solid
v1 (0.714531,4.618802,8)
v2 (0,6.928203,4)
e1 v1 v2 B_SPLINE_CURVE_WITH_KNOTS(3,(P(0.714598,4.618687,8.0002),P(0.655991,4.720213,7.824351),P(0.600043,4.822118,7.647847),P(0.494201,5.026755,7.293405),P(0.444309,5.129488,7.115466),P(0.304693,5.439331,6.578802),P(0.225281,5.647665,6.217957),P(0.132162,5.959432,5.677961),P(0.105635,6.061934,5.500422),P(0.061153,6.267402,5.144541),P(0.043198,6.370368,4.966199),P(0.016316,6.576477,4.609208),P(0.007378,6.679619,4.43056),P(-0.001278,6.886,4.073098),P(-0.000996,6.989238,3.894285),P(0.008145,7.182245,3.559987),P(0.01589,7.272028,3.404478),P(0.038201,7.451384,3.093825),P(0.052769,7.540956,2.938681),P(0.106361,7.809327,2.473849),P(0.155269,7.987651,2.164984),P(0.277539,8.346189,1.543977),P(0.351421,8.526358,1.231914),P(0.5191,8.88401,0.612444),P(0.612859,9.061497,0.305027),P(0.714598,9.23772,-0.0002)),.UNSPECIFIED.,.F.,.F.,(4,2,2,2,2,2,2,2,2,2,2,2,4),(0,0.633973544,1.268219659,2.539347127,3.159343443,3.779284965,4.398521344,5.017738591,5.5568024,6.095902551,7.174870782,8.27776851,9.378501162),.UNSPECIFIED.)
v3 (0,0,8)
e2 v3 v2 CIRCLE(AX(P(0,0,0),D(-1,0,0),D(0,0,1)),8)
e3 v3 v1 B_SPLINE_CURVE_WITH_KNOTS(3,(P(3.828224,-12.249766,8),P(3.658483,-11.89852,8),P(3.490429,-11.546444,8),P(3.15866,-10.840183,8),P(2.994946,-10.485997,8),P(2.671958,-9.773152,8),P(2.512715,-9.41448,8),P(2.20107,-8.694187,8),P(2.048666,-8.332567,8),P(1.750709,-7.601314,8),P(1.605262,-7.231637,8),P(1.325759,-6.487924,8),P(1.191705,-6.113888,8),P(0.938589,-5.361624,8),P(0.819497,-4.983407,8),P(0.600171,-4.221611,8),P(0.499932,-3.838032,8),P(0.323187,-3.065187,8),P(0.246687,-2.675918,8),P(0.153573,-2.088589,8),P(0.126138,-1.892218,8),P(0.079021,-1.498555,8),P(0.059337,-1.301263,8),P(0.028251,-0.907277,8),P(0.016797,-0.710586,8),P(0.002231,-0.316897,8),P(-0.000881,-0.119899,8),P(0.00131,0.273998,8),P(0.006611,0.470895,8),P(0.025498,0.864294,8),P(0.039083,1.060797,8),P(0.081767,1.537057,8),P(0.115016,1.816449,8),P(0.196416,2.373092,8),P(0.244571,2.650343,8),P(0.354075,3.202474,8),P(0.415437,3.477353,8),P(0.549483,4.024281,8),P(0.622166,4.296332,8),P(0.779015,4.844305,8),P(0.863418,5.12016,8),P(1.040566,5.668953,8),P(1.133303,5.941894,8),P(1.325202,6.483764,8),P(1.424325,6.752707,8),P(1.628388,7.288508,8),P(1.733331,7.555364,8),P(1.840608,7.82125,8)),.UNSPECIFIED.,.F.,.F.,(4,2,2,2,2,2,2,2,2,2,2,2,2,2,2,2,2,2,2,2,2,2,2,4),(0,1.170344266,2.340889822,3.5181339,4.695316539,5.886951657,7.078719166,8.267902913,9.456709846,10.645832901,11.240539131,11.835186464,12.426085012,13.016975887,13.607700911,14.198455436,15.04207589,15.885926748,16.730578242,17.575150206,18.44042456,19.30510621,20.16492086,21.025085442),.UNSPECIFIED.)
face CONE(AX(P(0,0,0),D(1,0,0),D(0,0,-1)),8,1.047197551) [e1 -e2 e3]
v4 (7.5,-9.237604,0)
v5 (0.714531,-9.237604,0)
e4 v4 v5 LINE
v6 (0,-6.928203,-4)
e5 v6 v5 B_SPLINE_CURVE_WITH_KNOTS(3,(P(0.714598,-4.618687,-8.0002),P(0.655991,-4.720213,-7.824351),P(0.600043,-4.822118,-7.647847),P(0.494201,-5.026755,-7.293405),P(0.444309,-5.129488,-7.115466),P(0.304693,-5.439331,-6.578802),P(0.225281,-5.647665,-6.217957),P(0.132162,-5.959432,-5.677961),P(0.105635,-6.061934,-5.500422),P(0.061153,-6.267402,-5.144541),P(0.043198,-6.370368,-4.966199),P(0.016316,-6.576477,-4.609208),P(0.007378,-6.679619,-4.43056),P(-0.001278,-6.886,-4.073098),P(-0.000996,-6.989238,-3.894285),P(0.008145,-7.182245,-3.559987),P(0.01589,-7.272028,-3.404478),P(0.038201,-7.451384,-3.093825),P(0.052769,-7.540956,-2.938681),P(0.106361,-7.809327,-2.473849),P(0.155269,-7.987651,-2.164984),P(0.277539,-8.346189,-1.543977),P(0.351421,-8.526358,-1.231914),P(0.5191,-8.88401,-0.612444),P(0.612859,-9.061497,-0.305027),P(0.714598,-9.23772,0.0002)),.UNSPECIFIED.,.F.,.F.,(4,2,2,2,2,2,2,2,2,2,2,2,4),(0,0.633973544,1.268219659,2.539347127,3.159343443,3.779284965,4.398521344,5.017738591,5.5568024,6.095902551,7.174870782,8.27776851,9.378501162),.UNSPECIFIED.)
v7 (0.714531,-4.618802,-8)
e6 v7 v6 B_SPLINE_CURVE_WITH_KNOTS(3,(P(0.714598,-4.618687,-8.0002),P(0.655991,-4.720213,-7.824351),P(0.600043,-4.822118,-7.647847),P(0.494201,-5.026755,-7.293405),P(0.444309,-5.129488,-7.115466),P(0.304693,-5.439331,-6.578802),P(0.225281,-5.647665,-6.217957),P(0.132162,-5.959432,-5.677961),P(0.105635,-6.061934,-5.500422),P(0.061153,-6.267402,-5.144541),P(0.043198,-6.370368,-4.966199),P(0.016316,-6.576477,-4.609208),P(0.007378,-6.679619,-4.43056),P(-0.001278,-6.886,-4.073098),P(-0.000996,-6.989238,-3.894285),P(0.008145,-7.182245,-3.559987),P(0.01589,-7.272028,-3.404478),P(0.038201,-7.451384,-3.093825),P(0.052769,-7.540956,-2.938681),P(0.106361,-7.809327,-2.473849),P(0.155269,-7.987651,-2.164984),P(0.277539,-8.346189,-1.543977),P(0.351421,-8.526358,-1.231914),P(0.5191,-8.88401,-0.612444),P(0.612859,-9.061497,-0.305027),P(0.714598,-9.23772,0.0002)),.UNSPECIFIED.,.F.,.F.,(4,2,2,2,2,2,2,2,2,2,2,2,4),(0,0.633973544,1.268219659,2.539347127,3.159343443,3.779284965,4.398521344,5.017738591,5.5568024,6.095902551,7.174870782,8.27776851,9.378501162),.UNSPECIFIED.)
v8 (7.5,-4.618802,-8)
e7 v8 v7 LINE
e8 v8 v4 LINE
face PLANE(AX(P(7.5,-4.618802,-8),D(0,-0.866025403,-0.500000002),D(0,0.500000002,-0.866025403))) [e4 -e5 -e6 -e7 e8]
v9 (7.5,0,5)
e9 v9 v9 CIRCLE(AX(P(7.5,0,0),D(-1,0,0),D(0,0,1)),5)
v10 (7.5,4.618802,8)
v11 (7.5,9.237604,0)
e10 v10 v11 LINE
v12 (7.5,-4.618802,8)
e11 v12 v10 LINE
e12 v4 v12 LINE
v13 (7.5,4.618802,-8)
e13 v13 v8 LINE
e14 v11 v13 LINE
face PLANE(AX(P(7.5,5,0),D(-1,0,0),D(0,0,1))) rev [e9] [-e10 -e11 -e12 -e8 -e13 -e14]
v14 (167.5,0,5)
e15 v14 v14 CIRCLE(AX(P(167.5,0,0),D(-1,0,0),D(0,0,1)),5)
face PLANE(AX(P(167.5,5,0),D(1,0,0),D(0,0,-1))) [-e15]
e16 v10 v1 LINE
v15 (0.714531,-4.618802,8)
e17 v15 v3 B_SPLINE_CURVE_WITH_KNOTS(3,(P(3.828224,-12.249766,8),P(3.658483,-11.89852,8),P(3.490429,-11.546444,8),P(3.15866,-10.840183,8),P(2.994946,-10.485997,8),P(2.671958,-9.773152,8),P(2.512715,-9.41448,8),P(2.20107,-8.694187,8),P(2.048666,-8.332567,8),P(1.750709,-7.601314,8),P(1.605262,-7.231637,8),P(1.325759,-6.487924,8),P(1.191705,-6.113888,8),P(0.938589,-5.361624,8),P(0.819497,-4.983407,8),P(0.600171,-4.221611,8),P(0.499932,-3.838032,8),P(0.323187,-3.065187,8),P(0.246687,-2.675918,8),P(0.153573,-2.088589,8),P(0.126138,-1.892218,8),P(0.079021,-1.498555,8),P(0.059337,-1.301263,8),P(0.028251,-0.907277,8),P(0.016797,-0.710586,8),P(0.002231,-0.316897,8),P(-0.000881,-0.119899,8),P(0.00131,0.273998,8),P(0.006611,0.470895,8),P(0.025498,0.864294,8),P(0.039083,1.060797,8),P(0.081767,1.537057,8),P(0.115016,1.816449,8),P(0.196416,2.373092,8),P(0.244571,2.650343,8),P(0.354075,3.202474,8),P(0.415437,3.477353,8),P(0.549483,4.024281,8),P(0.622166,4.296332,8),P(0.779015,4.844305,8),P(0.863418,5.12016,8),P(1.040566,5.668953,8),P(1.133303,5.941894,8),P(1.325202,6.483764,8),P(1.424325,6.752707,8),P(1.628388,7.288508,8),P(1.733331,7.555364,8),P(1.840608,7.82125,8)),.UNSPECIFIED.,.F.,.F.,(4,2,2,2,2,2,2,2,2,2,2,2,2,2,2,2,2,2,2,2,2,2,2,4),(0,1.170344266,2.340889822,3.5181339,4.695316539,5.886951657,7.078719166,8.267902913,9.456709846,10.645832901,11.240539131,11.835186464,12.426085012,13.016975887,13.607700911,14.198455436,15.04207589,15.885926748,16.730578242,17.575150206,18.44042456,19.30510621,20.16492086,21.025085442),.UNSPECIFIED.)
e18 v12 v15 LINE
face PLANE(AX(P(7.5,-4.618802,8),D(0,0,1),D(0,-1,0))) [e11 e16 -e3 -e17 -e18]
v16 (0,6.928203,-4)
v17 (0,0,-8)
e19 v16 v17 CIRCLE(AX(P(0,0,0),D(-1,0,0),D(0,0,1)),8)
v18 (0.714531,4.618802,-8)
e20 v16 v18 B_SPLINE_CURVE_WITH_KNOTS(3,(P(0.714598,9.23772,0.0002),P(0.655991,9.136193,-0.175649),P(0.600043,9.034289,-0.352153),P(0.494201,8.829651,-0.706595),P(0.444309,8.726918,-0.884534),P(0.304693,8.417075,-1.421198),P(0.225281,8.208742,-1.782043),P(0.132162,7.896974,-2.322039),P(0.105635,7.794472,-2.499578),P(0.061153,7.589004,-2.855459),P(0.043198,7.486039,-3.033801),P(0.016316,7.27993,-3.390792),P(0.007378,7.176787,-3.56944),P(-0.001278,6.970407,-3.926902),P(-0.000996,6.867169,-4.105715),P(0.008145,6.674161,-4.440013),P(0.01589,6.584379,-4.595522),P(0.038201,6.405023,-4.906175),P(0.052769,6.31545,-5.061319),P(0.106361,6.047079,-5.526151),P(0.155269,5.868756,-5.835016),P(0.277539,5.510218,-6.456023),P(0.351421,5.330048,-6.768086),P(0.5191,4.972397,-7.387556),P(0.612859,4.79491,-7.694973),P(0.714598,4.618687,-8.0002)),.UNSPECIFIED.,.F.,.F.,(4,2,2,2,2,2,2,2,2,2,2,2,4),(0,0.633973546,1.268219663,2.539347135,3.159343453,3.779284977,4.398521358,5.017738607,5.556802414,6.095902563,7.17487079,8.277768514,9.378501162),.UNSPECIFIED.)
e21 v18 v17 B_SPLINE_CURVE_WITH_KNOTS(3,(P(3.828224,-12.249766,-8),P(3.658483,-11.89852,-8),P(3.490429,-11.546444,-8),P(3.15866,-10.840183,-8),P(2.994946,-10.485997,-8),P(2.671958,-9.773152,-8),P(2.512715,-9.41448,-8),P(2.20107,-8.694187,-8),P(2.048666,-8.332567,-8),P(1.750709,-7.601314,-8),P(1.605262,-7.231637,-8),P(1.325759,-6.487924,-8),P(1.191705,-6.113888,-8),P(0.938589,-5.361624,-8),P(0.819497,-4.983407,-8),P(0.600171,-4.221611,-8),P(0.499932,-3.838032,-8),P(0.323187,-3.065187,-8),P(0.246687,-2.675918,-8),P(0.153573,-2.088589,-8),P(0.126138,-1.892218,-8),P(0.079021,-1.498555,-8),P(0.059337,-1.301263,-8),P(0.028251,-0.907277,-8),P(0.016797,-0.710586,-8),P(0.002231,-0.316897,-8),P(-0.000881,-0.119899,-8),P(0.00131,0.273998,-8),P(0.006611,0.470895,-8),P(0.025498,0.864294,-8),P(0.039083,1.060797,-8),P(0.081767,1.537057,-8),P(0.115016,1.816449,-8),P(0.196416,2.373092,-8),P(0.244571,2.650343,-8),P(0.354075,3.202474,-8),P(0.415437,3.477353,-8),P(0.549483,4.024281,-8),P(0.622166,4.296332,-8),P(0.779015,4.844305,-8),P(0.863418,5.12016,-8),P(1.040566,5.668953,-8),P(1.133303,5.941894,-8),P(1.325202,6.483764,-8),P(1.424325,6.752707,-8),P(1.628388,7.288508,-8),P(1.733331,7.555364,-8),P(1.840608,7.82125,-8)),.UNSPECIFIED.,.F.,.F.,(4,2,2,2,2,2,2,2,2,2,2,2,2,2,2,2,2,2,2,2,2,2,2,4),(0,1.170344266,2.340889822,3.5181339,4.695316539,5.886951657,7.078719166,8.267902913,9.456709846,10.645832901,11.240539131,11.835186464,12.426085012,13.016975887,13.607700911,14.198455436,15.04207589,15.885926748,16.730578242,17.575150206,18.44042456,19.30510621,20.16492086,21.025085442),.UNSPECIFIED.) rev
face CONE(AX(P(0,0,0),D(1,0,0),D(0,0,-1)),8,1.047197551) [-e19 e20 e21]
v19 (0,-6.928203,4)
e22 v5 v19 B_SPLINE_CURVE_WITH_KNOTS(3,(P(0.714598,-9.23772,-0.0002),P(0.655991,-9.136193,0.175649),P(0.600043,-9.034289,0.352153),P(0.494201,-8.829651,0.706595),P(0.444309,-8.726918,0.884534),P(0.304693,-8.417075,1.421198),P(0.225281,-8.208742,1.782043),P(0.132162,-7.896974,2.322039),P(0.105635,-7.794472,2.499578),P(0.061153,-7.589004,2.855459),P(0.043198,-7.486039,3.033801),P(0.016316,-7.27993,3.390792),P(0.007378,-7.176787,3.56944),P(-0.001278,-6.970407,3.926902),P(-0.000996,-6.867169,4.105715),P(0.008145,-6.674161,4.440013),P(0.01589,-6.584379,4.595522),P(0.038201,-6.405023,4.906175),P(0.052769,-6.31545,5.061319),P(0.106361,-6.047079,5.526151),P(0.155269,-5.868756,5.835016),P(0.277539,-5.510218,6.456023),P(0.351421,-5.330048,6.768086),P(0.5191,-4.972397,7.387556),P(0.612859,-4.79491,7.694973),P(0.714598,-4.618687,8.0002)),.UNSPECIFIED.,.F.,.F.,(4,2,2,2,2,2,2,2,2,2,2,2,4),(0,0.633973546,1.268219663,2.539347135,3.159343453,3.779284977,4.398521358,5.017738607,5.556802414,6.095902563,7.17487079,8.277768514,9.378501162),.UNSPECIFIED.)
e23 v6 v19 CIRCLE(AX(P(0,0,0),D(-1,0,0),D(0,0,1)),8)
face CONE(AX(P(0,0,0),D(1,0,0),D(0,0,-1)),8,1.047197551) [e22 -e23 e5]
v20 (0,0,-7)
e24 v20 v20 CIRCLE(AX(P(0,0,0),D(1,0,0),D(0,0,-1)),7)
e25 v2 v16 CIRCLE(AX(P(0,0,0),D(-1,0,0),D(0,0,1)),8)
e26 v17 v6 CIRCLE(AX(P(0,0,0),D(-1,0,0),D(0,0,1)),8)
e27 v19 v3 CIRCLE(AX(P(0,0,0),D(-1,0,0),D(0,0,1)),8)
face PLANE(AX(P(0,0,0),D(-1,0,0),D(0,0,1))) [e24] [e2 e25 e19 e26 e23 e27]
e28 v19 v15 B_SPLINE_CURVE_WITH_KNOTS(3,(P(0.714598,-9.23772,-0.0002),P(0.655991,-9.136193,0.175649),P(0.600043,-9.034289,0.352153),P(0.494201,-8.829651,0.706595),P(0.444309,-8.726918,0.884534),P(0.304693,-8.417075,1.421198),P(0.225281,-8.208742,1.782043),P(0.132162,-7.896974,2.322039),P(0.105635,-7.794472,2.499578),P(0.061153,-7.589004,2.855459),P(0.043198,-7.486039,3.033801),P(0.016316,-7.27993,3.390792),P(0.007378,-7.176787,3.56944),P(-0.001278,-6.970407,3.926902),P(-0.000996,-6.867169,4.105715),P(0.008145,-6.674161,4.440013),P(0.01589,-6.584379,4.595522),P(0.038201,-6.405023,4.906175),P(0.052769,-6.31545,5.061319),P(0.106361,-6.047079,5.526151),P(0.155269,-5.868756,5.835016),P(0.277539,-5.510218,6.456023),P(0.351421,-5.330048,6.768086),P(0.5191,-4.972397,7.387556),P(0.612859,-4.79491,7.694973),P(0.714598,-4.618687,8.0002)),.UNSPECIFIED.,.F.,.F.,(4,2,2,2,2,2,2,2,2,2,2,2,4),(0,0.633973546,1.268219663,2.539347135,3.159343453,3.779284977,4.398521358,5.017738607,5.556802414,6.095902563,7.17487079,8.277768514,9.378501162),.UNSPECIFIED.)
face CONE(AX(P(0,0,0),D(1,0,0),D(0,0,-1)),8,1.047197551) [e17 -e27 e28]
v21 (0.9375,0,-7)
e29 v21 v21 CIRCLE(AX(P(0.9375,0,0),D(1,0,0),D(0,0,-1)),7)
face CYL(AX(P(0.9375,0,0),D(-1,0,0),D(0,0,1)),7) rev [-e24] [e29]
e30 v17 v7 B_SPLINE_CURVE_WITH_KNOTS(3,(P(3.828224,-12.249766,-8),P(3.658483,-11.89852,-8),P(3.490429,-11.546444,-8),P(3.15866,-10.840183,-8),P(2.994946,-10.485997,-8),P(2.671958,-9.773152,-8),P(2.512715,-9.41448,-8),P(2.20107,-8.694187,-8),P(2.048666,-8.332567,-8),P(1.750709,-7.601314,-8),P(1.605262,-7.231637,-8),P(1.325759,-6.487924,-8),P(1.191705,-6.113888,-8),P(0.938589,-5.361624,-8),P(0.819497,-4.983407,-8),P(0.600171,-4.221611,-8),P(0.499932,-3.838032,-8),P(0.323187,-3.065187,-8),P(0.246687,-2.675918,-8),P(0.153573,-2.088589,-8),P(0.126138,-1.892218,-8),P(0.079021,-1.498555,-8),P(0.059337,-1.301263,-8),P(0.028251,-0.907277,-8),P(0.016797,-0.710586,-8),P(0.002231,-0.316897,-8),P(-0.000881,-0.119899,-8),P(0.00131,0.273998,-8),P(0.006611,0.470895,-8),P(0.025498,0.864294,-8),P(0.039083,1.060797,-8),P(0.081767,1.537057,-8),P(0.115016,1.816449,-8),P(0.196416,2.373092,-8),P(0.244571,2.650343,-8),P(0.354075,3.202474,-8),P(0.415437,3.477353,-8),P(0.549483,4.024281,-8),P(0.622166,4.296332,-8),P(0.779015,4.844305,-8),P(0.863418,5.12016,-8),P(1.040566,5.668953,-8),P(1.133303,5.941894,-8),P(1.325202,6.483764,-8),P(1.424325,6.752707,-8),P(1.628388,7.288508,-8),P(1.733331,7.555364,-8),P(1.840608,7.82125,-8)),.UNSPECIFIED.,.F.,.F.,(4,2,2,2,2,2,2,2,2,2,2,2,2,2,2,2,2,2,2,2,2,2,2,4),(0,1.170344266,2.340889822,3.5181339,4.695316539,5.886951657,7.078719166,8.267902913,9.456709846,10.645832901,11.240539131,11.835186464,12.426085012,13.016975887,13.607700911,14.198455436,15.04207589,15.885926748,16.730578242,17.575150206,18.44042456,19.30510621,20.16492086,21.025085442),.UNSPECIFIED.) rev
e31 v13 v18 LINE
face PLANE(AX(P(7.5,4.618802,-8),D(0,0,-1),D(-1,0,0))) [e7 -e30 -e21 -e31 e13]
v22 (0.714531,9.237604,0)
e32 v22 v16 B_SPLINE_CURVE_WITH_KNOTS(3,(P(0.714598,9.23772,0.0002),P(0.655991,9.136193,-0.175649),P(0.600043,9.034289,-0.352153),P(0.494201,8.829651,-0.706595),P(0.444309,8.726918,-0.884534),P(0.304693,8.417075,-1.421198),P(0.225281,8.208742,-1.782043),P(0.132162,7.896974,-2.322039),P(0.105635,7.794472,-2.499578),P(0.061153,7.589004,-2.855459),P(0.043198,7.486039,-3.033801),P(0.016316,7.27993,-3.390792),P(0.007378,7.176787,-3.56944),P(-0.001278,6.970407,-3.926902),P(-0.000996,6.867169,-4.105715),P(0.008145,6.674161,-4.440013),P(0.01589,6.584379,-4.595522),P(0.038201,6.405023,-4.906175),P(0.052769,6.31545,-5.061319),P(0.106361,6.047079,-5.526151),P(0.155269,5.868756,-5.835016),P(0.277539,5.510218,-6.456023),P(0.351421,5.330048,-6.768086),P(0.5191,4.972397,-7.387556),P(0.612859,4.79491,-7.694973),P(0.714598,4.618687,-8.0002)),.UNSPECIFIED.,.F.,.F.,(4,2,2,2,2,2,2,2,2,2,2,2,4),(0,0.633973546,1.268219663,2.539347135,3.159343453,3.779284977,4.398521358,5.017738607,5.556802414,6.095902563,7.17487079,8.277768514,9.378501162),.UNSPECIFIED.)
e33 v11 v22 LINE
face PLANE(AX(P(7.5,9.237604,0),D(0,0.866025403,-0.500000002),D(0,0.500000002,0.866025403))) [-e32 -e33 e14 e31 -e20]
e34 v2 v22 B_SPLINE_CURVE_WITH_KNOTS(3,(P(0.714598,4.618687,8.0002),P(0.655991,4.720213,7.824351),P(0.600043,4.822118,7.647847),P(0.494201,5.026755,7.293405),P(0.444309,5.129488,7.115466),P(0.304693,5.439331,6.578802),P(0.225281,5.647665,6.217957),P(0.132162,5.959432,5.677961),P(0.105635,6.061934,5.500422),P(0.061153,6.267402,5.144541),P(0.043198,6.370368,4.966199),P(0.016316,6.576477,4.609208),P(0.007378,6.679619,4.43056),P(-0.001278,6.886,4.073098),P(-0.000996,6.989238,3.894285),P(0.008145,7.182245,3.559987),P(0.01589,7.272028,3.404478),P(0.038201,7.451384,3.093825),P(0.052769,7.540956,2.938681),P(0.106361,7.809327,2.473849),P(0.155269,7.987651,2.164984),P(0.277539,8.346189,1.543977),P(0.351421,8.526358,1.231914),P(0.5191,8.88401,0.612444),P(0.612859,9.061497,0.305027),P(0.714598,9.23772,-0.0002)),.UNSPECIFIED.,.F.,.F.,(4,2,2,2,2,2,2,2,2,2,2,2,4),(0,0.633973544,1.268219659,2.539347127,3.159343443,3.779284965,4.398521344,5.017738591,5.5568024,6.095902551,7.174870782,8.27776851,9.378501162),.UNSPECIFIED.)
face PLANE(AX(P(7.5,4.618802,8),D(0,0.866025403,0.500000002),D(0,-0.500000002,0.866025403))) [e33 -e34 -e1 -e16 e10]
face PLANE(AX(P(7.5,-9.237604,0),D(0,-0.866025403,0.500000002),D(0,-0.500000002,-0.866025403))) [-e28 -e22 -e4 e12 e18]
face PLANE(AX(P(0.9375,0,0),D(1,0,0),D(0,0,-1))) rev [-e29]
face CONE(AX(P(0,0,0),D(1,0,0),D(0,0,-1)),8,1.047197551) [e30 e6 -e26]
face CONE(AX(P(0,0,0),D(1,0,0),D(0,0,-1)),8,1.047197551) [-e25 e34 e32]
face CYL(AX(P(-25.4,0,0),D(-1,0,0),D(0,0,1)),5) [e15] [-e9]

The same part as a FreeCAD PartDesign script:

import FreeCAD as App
import Part
import Sketcher

V = App.Vector
Q = App.Units.Quantity

doc = App.newDocument("Part")
params = doc.addObject("Spreadsheet::Sheet", "Params")
for row, (alias, value) in enumerate([
    ("sketch1_width", "160 mm"),
    ("sketch1_height", "8 mm"),
    ("sketch1_height2", "5 mm"),
    ("sketch1_width2", "167.5 mm"),
    ("revolution_angle", "360 deg"),
    ("pocket1_length", "7.5 mm"),
    ("sketch3_diameter", "14 mm"),
    ("pocket2_length", "0.9375 mm"),
], start=1):
    params.set(f"A{row}", alias)
    params.set(f"B{row}", "=" + value)
    params.setAlias(f"B{row}", alias)

body = doc.addObject("PartDesign::Body", "Body")

sketch1 = body.newObject("Sketcher::SketchObject", "Sketch")
sketch1.AttachmentSupport = (doc.getObject("XY_Plane"), [""])
sketch1.MapMode = "FlatFace"
sketch1.addGeometry(Part.LineSegment(V(7.5, 5, 0), V(7.5, 9.2, 0)), False)
sketch1.addGeometry(Part.LineSegment(V(7.5, 9.2, 0), V(0.7, 9.2, 0)), False)
sketch1.addGeometry(Part.LineSegment(V(0.7, 9.2, 0), V(0, 8, 0)), False)
sketch1.addGeometry(Part.LineSegment(V(0, 8, 0), V(0, 0, 0)), False)
sketch1.addGeometry(Part.LineSegment(V(0, 0, 0), V(167.5, 0, 0)), False)
sketch1.addGeometry(Part.LineSegment(V(167.5, 0, 0), V(167.5, 5, 0)), False)
sketch1.addGeometry(Part.LineSegment(V(167.5, 5, 0), V(7.5, 5, 0)), False)
sketch1.addConstraint(Sketcher.Constraint("Coincident", 0, 2, 1, 1))
sketch1.addConstraint(Sketcher.Constraint("Coincident", 1, 2, 2, 1))
sketch1.addConstraint(Sketcher.Constraint("Coincident", 2, 2, 3, 1))
sketch1.addConstraint(Sketcher.Constraint("Coincident", 3, 2, 4, 1))
sketch1.addConstraint(Sketcher.Constraint("Coincident", 4, 2, 5, 1))
sketch1.addConstraint(Sketcher.Constraint("Coincident", 5, 2, 6, 1))
sketch1.addConstraint(Sketcher.Constraint("Coincident", 6, 2, 0, 1))
sketch1.addConstraint(Sketcher.Constraint("Vertical", 0))
sketch1.addConstraint(Sketcher.Constraint("Horizontal", 1))
sketch1.addConstraint(Sketcher.Constraint("Vertical", 3))
sketch1.addConstraint(Sketcher.Constraint("Horizontal", 4))
sketch1.addConstraint(Sketcher.Constraint("Vertical", 5))
sketch1.addConstraint(Sketcher.Constraint("Horizontal", 6))
sketch1.addConstraint(Sketcher.Constraint("Coincident", 3, 2, -1, 1))
sketch1.addConstraint(Sketcher.Constraint("DistanceX", 6, 2, 6, 1, 160.0))
sketch1.addConstraint(Sketcher.Constraint("DistanceY", 3, 2, 3, 1, 8.0))
sketch1.addConstraint(Sketcher.Constraint("DistanceY", 5, 1, 5, 2, 5.0))
sketch1.addConstraint(Sketcher.Constraint("Angle", 2, Q("-120 deg")))
sketch1.addConstraint(Sketcher.Constraint("DistanceX", 4, 1, 4, 2, 167.5))
sketch1.addConstraint(Sketcher.Constraint("DistanceX", 1, 2, 1, 1, 6.785312))
sketch1.setExpression("Constraints[14]", "Params.sketch1_width")
sketch1.setExpression("Constraints[15]", "Params.sketch1_height")
sketch1.setExpression("Constraints[16]", "Params.sketch1_height2")
sketch1.setExpression("Constraints[18]", "Params.sketch1_width2")
revolution = body.newObject("PartDesign::Revolution", "Revolution")
revolution.Profile = sketch1
revolution.ReferenceAxis = (sketch1, ["H_Axis"])
revolution.setExpression("Angle", "Params.revolution_angle")

sketch2 = body.newObject("Sketcher::SketchObject", "Sketch001")
sketch2.AttachmentSupport = (doc.getObject("YZ_Plane"), [""])
sketch2.MapMode = "FlatFace"
sketch2.addGeometry(Part.Circle(V(0, 0, 0), V(0, 0, 1), 9), False)
sketch2.addGeometry(Part.LineSegment(V(-5, 8, 0), V(5, 8, 0)), False)
sketch2.addGeometry(Part.LineSegment(V(5, 8, 0), V(9, 0, 0)), False)
sketch2.addGeometry(Part.LineSegment(V(9, 0, 0), V(5, -8, 0)), False)
sketch2.addGeometry(Part.LineSegment(V(5, -8, 0), V(-5, -8, 0)), False)
sketch2.addGeometry(Part.LineSegment(V(-5, -8, 0), V(-9, 0, 0)), False)
sketch2.addGeometry(Part.LineSegment(V(-9, 0, 0), V(-5, 8, 0)), False)
sketch2.addConstraint(Sketcher.Constraint("Coincident", 1, 2, 2, 1))
sketch2.addConstraint(Sketcher.Constraint("Coincident", 2, 2, 3, 1))
sketch2.addConstraint(Sketcher.Constraint("Coincident", 3, 2, 4, 1))
sketch2.addConstraint(Sketcher.Constraint("Coincident", 4, 2, 5, 1))
sketch2.addConstraint(Sketcher.Constraint("Coincident", 5, 2, 6, 1))
sketch2.addConstraint(Sketcher.Constraint("Coincident", 6, 2, 1, 1))
sketch2.addConstraint(Sketcher.Constraint("Horizontal", 1))
sketch2.addConstraint(Sketcher.Constraint("Horizontal", 4))
sketch2.addConstraint(Sketcher.Constraint("Coincident", 0, 3, -1, 1))
sketch2.addConstraint(Sketcher.Constraint("Symmetric", 1, 2, 4, 2, -1, 1))
sketch2.addConstraint(Sketcher.Constraint("Symmetric", 2, 2, 5, 2, -1, 1))
sketch2.addConstraint(Sketcher.Constraint("PointOnObject", 2, 2, -1))
sketch2.addConstraint(Sketcher.Constraint("Parallel", 3, 6))
sketch2.addConstraint(Sketcher.Constraint("Vertical", 1, 2, 3, 2))
sketch2.addConstraint(Sketcher.Constraint("Angle", 2, Q("-60 deg")))
sketch2.addConstraint(Sketcher.Constraint("DistanceY", -1, 1, 1, 2, 8.0))
sketch2.addConstraint(Sketcher.Constraint("Diameter", 0, 18.660508))
sketch2.addConstraint(Sketcher.Constraint("DistanceX", 1, 1, 1, 2, 9.237604))
pocket1 = body.newObject("PartDesign::Pocket", "Pocket")
pocket1.Profile = sketch2
pocket1.setExpression("Length", "Params.pocket1_length")
pocket1.Reversed = True

sketch3 = body.newObject("Sketcher::SketchObject", "Sketch002")
sketch3.AttachmentSupport = (doc.getObject("YZ_Plane"), [""])
sketch3.MapMode = "FlatFace"
sketch3.addGeometry(Part.Circle(V(0, 0, 0), V(0, 0, 1), 7), False)
sketch3.addConstraint(Sketcher.Constraint("Coincident", 0, 3, -1, 1))
sketch3.addConstraint(Sketcher.Constraint("Diameter", 0, 14.0))
sketch3.setExpression("Constraints[1]", "Params.sketch3_diameter")
pocket2 = body.newObject("PartDesign::Pocket", "Pocket001")
pocket2.Profile = sketch3
pocket2.setExpression("Length", "Params.pocket2_length")
pocket2.Reversed = True

doc.recompute()
